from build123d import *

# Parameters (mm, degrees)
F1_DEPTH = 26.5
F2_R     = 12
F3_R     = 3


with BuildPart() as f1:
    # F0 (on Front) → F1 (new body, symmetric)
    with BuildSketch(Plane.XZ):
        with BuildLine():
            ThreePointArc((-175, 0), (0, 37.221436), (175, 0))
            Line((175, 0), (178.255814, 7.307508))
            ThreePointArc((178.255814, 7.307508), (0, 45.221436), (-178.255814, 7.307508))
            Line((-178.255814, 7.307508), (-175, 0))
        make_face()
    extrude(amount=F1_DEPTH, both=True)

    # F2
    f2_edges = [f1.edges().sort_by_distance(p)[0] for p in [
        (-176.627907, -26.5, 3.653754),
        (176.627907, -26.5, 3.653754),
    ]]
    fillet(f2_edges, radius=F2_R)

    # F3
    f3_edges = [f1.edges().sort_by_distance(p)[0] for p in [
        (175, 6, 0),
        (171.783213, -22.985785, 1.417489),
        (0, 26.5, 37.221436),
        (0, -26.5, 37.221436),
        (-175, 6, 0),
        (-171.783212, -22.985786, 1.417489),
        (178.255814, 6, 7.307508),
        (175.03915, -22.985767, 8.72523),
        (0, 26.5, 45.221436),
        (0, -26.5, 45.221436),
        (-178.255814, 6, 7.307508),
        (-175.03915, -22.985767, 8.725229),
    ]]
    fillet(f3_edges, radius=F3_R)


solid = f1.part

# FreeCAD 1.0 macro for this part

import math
import FreeCAD as App
import Part
import Sketcher

V = App.Vector
Q = App.Units.Quantity


def edges_at(feature, points):
    """Names of the edges that pass closest to the given points."""
    edges = feature.Shape.Edges
    near = lambda p: min(range(len(edges)), key=lambda i: edges[i].distToShape(Part.Vertex(*p))[0])
    return sorted({f"Edge{near(p) + 1}" for p in points})

doc = App.newDocument("Part")
params = doc.addObject("Spreadsheet::Sheet", "Params")
for row, (alias, value) in enumerate([
    ("sketch1_length", "8 mm"),
    ("pad1_length", "53 mm"),
    ("fillet_radius", "12 mm"),
    ("fillet2_radius", "3 mm"),
], start=1):
    params.set(f"A{row}", alias)
    params.set(f"B{row}", "=" + value)
    params.setAlias(f"B{row}", alias)

body = doc.addObject("PartDesign::Body", "Body")

# Sketch on XZ plane
sketch1 = body.newObject("Sketcher::SketchObject", "Sketch")
sketch1.AttachmentSupport = (doc.getObject("XZ_Plane"), [""])
sketch1.MapMode = "FlatFace"
sketch1.addGeometry([
    Part.ArcOfCircle(Part.Circle(V(0, -392.778569, 0), V(0, 0, 1), 430.000005), math.radians(65.984941), math.radians(114.015059)),
    Part.LineSegment(V(175, 0, 0), V(178.255814, 7.307508, 0)),
    Part.ArcOfCircle(Part.Circle(V(0, -392.778567, 0), V(0, 0, 1), 438.000003), math.radians(65.984941), math.radians(114.015059)),
    Part.LineSegment(V(-178.255814, 7.307508, 0), V(-175, 0, 0)),
], False)
sketch1.addConstraint([
    Sketcher.Constraint("Coincident", 0, 1, 1, 1),
    Sketcher.Constraint("Coincident", 1, 2, 2, 1),
    Sketcher.Constraint("Coincident", 2, 2, 3, 1),
    Sketcher.Constraint("Coincident", 3, 2, 0, 2),
    Sketcher.Constraint("Coincident", 2, 3, 0, 3),
    Sketcher.Constraint("Symmetric", 0, 1, 3, 2, -1, 1),
    Sketcher.Constraint("Symmetric", 1, 2, 2, 2, -2),
    Sketcher.Constraint("Distance", 1, Q("8 mm")),
    Sketcher.Constraint("DistanceX", 3, 2, -1, 1, Q("175 mm")),
    Sketcher.Constraint("Radius", 0, Q("430.000005 mm")),
    Sketcher.Constraint("DistanceY", -1, 1, 1, 2, Q("7.307508 mm")),
])
sketch1.setExpression("Constraints[7]", "Params.sketch1_length")
pad1 = body.newObject("PartDesign::Pad", "Pad")
pad1.Profile = sketch1
pad1.setExpression("Length", "Params.pad1_length")
pad1.Midplane = True
doc.recompute()

fillet = body.newObject("PartDesign::Fillet", "Fillet")
fillet.Base = (pad1, edges_at(pad1, [(-176.628, -26.5, 3.654), (176.628, -26.5, 3.654)]))
fillet.setExpression("Radius", "Params.fillet_radius")
doc.recompute()

fillet2 = body.newObject("PartDesign::Fillet", "Fillet001")
fillet2.Base = (fillet, edges_at(fillet, [
    (175, 6, 0),
    (171.783, -22.986, 1.417),
    (0, 26.5, 37.221),
    (0, -26.5, 37.221),
    (-175, 6, 0),
    (-171.783, -22.986, 1.417),
    (178.256, 6, 7.308),
    (175.039, -22.986, 8.725),
    (0, 26.5, 45.221),
    (0, -26.5, 45.221),
    (-178.256, 6, 7.308),
    (-175.039, -22.986, 8.725),
]))
fillet2.setExpression("Radius", "Params.fillet2_radius")

doc.recompute()
